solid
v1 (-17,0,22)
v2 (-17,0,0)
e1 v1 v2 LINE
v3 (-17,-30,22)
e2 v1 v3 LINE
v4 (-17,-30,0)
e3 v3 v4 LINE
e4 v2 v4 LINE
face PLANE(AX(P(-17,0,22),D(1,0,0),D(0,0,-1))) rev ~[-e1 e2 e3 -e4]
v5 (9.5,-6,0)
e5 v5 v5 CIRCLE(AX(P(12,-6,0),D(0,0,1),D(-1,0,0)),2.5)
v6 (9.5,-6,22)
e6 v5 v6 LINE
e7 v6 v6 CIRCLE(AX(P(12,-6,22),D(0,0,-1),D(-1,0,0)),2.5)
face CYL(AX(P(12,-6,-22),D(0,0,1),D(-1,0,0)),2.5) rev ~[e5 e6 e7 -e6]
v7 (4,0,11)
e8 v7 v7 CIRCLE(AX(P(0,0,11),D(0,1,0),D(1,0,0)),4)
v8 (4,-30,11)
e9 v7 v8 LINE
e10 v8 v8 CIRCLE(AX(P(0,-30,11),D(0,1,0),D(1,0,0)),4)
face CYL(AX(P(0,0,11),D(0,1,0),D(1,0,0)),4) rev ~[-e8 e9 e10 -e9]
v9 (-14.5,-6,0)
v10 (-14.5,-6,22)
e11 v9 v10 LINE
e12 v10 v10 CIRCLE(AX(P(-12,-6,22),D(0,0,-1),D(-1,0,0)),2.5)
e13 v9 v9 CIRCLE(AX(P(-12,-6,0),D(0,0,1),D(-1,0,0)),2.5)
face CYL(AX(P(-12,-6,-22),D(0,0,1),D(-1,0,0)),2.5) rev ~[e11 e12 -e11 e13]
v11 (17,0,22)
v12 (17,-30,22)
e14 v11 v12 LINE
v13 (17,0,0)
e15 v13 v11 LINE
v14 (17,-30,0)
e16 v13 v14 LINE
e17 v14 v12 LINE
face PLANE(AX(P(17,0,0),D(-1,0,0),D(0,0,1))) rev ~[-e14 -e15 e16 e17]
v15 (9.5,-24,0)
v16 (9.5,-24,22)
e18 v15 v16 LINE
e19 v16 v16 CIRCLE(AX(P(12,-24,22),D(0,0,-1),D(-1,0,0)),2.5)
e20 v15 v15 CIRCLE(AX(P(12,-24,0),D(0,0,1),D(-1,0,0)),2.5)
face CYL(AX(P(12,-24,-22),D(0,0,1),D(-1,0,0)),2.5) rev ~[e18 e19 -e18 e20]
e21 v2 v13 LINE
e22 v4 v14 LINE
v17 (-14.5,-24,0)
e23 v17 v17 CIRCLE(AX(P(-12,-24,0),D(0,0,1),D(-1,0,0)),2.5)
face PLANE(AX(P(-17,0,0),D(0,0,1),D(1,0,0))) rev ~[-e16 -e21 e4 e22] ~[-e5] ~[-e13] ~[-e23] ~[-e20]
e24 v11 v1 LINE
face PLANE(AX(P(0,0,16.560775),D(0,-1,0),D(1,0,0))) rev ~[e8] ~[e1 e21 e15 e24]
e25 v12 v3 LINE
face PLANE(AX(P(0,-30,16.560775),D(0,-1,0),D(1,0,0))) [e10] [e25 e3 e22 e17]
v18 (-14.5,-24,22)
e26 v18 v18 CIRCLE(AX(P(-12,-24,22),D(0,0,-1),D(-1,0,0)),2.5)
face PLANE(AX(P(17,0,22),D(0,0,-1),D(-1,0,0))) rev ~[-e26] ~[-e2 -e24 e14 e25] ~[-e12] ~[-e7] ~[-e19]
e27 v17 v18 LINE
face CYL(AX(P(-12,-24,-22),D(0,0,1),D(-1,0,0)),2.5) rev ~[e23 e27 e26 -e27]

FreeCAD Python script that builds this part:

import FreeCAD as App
import Part
import Sketcher


def add_polygon(sketch, points):
    """Adds a closed chain of lines whose ends are joined by coincident constraints."""
    first, n = sketch.GeometryCount, len(points)
    for a, b in zip(points, points[1:] + points[:1]):
        sketch.addGeometry(Part.LineSegment(App.Vector(*a, 0), App.Vector(*b, 0)), False)
    for i in range(n):
        sketch.addConstraint(Sketcher.Constraint("Coincident", first + i, 2, first + (i + 1) % n, 1))

doc = App.newDocument("Part")
body = doc.addObject("PartDesign::Body", "Body")

# Sketch on XZ plane
sketch1 = body.newObject("Sketcher::SketchObject", "Sketch")
sketch1.AttachmentSupport = (doc.getObject("XZ_Plane"), [""])
sketch1.MapMode = "FlatFace"
add_polygon(sketch1, [(-17, 22), (-17, 0), (17, 0), (17, 22)])  # lines 0-3
sketch1.addGeometry(Part.Circle(App.Vector(0, 11, 0), App.Vector(0, 0, 1), 4), False)  # 4
sketch1.addConstraint([
    Sketcher.Constraint("Vertical", 0),
    Sketcher.Constraint("Horizontal", 1),
    Sketcher.Constraint("Vertical", 2),
    Sketcher.Constraint("Horizontal", 3),
    Sketcher.Constraint("Symmetric", 0, 2, 1, 2, -1, 1),
    Sketcher.Constraint("PointOnObject", 4, 3, -2),
    Sketcher.Constraint("Diameter", 4, 8.0),
    Sketcher.Constraint("DistanceX", 1, 1, 1, 2, 34.0),
    Sketcher.Constraint("DistanceY", 0, 2, 0, 1, 22.0),
    Sketcher.Constraint("DistanceY", -1, 1, 4, 3, 11.0),
])
pad1 = body.newObject("PartDesign::Pad", "Pad")
pad1.Profile = sketch1
pad1.Length = 30

# Sketch on XY plane
sketch2 = body.newObject("Sketcher::SketchObject", "Sketch001")
sketch2.AttachmentSupport = (doc.getObject("XY_Plane"), [""])
sketch2.MapMode = "FlatFace"
sketch2.addGeometry([
    Part.Circle(App.Vector(-12, -24, 0), App.Vector(0, 0, 1), 2.5),
    Part.Circle(App.Vector(-12, -6, 0), App.Vector(0, 0, 1), 2.5),
    Part.Circle(App.Vector(12, -24, 0), App.Vector(0, 0, 1), 2.5),
    Part.Circle(App.Vector(12, -6, 0), App.Vector(0, 0, 1), 2.5),
], False)
sketch2.addConstraint([
    Sketcher.Constraint("Equal", 0, 1),
    Sketcher.Constraint("Equal", 1, 2),
    Sketcher.Constraint("Equal", 2, 3),
    Sketcher.Constraint("Symmetric", 0, 3, 2, 3, -2),
    Sketcher.Constraint("Symmetric", 1, 3, 3, 3, -2),
    Sketcher.Constraint("Vertical", 0, 3, 1, 3),
    Sketcher.Constraint("Diameter", 0, 5.0),
    Sketcher.Constraint("DistanceX", 0, 3, -1, 1, 12.0),
    Sketcher.Constraint("DistanceY", 0, 3, -1, 1, 24.0),
    Sketcher.Constraint("DistanceY", 1, 3, -1, 1, 6.0),
])
doc.recompute()
hole = body.newObject("PartDesign::Hole", "Hole")
hole.Profile = sketch2
hole.ThreadType = "None"
hole.Diameter = 5
hole.DepthType = "Dimension"
hole.Depth = 22
hole.DrillPoint = "Angled"
hole.DrillPointAngle = 118
hole.Reversed = True

doc.recompute()
